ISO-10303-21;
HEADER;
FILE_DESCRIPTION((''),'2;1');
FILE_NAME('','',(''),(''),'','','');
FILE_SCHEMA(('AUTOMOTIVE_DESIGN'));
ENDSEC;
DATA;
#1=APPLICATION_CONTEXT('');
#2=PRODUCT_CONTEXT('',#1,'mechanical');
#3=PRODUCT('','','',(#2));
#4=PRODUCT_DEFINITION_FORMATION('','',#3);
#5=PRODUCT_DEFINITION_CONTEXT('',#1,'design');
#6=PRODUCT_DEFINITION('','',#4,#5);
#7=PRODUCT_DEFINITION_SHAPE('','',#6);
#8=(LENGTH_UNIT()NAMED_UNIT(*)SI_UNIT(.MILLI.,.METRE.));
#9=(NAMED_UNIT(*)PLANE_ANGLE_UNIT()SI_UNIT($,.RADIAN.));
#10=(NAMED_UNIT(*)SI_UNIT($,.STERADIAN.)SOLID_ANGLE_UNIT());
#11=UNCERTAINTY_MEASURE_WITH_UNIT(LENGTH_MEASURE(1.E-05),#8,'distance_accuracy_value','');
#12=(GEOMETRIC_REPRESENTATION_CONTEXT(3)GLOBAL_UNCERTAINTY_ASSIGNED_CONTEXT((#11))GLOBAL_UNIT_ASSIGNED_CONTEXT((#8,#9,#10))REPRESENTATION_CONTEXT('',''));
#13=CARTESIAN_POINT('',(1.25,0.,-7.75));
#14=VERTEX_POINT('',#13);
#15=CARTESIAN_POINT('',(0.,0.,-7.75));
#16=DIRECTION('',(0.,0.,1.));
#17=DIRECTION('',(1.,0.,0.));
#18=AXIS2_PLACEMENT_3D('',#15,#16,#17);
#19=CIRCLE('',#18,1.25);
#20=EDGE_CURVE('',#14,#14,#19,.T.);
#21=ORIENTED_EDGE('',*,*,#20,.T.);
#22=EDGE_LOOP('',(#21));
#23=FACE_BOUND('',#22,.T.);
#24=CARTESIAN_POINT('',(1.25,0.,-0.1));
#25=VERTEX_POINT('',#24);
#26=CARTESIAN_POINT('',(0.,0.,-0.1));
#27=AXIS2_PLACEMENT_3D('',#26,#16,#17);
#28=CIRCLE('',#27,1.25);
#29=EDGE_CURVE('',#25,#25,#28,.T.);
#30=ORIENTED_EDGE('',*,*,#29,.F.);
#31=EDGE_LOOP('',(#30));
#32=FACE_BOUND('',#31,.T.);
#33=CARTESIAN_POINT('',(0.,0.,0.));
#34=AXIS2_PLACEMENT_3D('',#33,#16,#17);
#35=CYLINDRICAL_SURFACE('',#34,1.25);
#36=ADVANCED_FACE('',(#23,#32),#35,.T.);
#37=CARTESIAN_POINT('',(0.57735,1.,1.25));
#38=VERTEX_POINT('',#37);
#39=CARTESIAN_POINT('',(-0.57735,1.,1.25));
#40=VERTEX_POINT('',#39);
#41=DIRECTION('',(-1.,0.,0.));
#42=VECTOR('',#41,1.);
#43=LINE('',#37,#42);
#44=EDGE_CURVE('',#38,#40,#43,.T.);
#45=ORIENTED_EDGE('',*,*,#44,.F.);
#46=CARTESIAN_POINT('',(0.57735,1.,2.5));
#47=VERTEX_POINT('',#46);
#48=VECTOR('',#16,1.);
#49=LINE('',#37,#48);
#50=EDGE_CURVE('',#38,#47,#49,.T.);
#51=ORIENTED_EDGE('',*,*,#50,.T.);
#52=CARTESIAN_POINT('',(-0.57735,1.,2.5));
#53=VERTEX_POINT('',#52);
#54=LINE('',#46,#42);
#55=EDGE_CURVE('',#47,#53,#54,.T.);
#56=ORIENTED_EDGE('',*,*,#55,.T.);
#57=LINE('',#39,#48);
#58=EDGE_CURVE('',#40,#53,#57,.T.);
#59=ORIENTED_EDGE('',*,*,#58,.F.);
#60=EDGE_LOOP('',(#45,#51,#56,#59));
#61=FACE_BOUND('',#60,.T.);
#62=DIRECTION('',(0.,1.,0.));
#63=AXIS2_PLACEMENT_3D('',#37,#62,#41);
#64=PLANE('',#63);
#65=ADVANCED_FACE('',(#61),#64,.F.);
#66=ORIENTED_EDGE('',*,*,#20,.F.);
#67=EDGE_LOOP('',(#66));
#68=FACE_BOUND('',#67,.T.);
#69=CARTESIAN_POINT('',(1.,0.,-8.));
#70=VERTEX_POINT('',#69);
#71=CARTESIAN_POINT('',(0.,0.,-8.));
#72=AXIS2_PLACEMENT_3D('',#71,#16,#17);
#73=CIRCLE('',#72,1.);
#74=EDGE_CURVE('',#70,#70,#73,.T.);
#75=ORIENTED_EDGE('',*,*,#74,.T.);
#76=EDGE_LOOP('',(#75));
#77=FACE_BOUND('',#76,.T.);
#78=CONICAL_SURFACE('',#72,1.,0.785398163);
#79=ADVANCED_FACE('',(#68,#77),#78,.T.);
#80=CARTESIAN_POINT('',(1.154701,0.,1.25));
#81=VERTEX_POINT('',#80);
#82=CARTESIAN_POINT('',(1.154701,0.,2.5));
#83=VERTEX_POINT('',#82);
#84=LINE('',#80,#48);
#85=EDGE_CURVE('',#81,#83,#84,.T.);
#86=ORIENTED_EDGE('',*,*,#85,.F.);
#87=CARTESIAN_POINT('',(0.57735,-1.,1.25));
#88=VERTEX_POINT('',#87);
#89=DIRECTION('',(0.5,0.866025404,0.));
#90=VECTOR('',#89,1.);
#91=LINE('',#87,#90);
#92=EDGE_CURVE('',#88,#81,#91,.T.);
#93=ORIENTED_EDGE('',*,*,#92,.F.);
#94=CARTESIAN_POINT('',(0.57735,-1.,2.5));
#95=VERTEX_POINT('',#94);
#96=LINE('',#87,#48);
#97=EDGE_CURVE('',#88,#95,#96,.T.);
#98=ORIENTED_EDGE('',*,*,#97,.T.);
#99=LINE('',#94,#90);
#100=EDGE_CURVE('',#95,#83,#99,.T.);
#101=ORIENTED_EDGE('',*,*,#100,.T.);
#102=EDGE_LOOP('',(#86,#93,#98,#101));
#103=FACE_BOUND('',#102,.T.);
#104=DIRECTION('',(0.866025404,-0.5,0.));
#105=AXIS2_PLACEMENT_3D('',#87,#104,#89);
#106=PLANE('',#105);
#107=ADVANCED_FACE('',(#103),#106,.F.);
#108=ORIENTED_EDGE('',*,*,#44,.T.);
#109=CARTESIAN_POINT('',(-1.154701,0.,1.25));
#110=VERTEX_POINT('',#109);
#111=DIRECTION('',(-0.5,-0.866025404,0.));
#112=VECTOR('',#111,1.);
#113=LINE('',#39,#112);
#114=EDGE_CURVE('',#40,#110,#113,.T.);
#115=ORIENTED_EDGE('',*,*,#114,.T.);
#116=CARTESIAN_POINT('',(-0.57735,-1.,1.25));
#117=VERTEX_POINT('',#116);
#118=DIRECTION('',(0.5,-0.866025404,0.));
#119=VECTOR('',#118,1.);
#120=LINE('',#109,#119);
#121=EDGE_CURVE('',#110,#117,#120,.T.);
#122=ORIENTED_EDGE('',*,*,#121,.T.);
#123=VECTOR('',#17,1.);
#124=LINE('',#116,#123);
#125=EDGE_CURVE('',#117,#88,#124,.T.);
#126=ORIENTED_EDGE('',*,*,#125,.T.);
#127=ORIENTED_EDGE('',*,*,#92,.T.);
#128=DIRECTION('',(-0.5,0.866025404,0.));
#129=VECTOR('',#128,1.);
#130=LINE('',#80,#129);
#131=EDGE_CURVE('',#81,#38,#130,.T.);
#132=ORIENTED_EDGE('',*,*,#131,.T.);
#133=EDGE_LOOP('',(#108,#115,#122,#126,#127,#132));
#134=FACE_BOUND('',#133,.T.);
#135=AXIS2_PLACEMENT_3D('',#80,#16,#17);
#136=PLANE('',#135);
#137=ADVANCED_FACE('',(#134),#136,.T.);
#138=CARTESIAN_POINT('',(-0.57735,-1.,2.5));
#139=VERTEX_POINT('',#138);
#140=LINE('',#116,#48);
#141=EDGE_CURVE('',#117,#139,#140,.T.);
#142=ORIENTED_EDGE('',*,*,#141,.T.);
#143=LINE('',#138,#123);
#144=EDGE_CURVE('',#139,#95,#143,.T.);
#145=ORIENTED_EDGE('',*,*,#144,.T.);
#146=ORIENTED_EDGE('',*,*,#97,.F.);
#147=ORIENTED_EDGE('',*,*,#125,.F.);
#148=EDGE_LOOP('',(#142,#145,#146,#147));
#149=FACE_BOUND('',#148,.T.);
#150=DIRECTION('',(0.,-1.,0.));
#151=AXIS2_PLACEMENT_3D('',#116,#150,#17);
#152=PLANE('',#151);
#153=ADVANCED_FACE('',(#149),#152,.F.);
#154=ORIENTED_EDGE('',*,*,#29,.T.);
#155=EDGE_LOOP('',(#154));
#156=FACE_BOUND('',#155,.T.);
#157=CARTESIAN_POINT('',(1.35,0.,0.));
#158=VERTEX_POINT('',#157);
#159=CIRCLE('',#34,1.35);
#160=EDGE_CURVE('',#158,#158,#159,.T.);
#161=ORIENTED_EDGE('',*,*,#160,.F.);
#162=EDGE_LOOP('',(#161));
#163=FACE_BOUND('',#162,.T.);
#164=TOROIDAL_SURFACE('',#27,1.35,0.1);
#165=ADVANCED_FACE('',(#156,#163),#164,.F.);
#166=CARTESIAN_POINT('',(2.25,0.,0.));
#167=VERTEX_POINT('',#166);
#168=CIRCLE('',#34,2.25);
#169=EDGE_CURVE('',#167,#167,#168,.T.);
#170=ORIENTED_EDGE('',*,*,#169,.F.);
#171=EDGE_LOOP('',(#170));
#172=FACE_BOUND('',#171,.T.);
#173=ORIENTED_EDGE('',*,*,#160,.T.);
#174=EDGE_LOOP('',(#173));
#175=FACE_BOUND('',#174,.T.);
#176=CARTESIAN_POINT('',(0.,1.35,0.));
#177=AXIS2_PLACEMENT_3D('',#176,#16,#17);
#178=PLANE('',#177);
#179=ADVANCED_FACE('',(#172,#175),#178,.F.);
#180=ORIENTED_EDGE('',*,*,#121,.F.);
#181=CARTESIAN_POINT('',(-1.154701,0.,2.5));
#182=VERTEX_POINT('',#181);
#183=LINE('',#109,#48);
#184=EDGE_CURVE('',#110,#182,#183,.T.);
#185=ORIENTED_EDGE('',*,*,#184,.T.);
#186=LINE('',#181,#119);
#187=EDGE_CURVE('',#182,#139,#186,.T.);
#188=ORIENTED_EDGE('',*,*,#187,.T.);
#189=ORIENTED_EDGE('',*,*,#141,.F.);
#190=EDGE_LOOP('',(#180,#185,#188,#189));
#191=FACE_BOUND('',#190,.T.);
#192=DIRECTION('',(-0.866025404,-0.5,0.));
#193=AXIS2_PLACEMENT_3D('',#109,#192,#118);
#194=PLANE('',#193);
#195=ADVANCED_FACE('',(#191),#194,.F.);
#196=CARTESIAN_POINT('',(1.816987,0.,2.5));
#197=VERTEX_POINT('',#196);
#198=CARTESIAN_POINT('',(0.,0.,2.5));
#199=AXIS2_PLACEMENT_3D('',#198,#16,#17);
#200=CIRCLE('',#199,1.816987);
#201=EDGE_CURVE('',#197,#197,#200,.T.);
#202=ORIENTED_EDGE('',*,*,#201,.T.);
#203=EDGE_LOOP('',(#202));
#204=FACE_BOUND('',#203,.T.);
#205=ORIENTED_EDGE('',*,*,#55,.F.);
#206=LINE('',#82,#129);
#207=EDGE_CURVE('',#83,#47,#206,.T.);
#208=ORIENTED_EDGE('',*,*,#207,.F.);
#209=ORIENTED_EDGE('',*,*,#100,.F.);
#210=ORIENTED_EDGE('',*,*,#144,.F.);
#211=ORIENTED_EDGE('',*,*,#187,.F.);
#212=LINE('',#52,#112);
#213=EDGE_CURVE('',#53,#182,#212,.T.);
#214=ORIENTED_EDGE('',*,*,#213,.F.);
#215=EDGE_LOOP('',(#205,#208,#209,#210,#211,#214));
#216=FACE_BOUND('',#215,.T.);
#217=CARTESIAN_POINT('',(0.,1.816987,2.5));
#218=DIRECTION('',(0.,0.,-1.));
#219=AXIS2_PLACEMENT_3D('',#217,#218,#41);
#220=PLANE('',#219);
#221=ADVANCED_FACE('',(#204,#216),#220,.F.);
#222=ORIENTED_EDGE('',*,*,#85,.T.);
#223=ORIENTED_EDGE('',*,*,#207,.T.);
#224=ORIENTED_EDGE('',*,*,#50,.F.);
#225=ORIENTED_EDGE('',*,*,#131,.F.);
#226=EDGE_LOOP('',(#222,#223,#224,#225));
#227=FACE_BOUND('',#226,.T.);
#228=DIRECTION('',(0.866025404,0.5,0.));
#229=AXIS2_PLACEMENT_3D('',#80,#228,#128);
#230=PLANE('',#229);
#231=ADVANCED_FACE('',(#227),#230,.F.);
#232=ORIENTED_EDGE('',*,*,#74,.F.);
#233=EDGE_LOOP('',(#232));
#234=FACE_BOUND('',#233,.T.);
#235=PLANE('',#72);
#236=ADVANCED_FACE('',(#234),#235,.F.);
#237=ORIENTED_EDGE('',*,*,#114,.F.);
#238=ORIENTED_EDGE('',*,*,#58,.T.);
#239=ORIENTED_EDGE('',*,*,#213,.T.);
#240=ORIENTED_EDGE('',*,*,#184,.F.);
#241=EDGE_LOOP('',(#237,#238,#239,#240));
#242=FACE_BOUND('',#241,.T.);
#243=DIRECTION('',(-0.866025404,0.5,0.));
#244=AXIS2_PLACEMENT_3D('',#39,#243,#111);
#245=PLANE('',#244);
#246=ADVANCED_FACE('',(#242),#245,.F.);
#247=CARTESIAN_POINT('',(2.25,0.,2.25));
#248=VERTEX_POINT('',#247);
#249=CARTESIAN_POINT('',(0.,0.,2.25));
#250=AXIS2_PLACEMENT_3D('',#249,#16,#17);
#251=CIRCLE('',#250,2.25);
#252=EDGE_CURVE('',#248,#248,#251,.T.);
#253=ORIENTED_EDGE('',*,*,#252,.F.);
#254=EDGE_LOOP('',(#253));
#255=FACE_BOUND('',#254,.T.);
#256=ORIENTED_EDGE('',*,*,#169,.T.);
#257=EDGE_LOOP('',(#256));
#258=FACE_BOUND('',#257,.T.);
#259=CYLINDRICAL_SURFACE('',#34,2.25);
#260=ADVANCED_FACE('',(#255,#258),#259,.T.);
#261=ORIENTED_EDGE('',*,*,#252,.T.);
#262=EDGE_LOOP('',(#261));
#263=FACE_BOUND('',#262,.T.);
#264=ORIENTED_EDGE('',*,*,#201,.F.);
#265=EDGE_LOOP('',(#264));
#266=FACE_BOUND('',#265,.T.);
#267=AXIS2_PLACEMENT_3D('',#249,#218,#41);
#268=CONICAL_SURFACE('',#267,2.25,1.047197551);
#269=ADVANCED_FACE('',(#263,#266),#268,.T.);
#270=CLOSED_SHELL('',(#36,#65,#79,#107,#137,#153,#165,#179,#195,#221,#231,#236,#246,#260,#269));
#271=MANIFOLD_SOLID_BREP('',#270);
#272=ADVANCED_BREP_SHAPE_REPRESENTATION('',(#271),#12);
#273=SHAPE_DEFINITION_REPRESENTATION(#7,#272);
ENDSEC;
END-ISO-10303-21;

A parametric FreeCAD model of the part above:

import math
import FreeCAD as App
import Part
import Sketcher
from FreeCAD import Vector
Q = App.Units.Quantity


def add_polygon(sketch, points):
    """Adds a closed chain of lines whose ends are joined by coincident constraints."""
    first, n = sketch.GeometryCount, len(points)
    for a, b in zip(points, points[1:] + points[:1]):
        sketch.addGeometry(Part.LineSegment(App.Vector(*a, 0), App.Vector(*b, 0)), False)
    for i in range(n):
        sketch.addConstraint(Sketcher.Constraint("Coincident", first + i, 2, first + (i + 1) % n, 1))

doc = App.newDocument("Part")
body = doc.addObject("PartDesign::Body", "Body")

# Sketch on YZ plane
sketch1 = body.newObject("Sketcher::SketchObject", "Sketch")
sketch1.AttachmentSupport = (doc.getObject("YZ_Plane"), [""])
sketch1.MapMode = "FlatFace"
sketch1.addGeometry([
    Part.LineSegment(Vector(0, -8, 0), Vector(1, -8, 0)),  # 0
    Part.LineSegment(Vector(1, -8, 0), Vector(1.25, -7.75, 0)),  # 1
    Part.LineSegment(Vector(1.25, -7.75, 0), Vector(1.25, -0.1, 0)),  # 2
    Part.ArcOfCircle(Part.Circle(Vector(1.35, -0.1, 0), Vector(0, 0, 1), 0.1), math.radians(90), math.radians(180)),  # 3
    Part.LineSegment(Vector(1.35, 0, 0), Vector(2.25, 0, 0)),  # 4
    Part.LineSegment(Vector(2.25, 0, 0), Vector(2.25, 2.25, 0)),  # 5
    Part.LineSegment(Vector(2.25, 2.25, 0), Vector(1.82, 2.5, 0)),  # 6
    Part.LineSegment(Vector(1.82, 2.5, 0), Vector(0, 2.5, 0)),  # 7
    Part.LineSegment(Vector(0, 2.5, 0), Vector(0, -8, 0)),  # 8
], False)
sketch1.addConstraint([
    Sketcher.Constraint("Coincident", 0, 2, 1, 1),
    Sketcher.Constraint("Coincident", 1, 2, 2, 1),
    Sketcher.Constraint("Tangent", 2, 2, 3, 2),
    Sketcher.Constraint("Tangent", 3, 1, 4, 1),
    Sketcher.Constraint("Coincident", 4, 2, 5, 1),
    Sketcher.Constraint("Coincident", 5, 2, 6, 1),
    Sketcher.Constraint("Coincident", 6, 2, 7, 1),
    Sketcher.Constraint("Coincident", 7, 2, 8, 1),
    Sketcher.Constraint("Coincident", 8, 2, 0, 1),
    Sketcher.Constraint("Horizontal", 0),
    Sketcher.Constraint("Vertical", 2),
    Sketcher.Constraint("Horizontal", 4),
    Sketcher.Constraint("Vertical", 5),
    Sketcher.Constraint("Horizontal", 7),
    Sketcher.Constraint("Vertical", 8),
    Sketcher.Constraint("PointOnObject", 3, 1, -1),
    Sketcher.Constraint("PointOnObject", 7, 2, -2),
    Sketcher.Constraint("Radius", 3, 0.1),
    Sketcher.Constraint("DistanceX", 0, 1, 0, 2, 1.0),
    Sketcher.Constraint("Angle", 1, Q("45 deg")),
    Sketcher.Constraint("Angle", 6, Q("150 deg")),
    Sketcher.Constraint("DistanceX", 4, 1, 4, 2, 0.9),
    Sketcher.Constraint("DistanceY", 8, 2, 8, 1, 10.5),
    Sketcher.Constraint("DistanceY", 0, 2, -1, 1, 8.0),
    Sketcher.Constraint("DistanceY", 1, 2, 5, 2, 10.0),
    Sketcher.Constraint("Distance", 6, 0.5),
])
revolution = body.newObject("PartDesign::Revolution", "Revolution")
revolution.Profile = sketch1
revolution.ReferenceAxis = (sketch1, ["V_Axis"])
revolution.Angle = 360

# Sketch on XY plane
sketch2 = body.newObject("Sketcher::SketchObject", "Sketch001")
sketch2.AttachmentSupport = (doc.getObject("XY_Plane"), [""])
sketch2.MapMode = "FlatFace"
sketch2.AttachmentOffset = App.Placement(Vector(0, 0, 2.5), App.Rotation())
add_polygon(sketch2, [(1.2, 0), (0.6, 1), (-0.6, 1), (-1.2, 0), (-0.6, -1), (0.6, -1)])  # lines 0-5
sketch2.addConstraint([
    Sketcher.Constraint("Horizontal", 1),
    Sketcher.Constraint("Horizontal", 4),
    Sketcher.Constraint("Symmetric", 0, 2, 3, 2, -1, 1),
    Sketcher.Constraint("Symmetric", 2, 2, 5, 2, -1, 1),
    Sketcher.Constraint("PointOnObject", 2, 2, -1),
    Sketcher.Constraint("Parallel", 2, 5),
    Sketcher.Constraint("Vertical", 1, 2, 3, 2),
    Sketcher.Constraint("Angle", 0, Q("120 deg")),
    Sketcher.Constraint("DistanceY", -1, 1, 0, 2, 1.0),
    Sketcher.Constraint("DistanceX", 1, 2, 1, 1, 1.154701),
])
pocket1 = body.newObject("PartDesign::Pocket", "Pocket")
pocket1.Profile = sketch2
pocket1.Length = 1.25

doc.recompute()
